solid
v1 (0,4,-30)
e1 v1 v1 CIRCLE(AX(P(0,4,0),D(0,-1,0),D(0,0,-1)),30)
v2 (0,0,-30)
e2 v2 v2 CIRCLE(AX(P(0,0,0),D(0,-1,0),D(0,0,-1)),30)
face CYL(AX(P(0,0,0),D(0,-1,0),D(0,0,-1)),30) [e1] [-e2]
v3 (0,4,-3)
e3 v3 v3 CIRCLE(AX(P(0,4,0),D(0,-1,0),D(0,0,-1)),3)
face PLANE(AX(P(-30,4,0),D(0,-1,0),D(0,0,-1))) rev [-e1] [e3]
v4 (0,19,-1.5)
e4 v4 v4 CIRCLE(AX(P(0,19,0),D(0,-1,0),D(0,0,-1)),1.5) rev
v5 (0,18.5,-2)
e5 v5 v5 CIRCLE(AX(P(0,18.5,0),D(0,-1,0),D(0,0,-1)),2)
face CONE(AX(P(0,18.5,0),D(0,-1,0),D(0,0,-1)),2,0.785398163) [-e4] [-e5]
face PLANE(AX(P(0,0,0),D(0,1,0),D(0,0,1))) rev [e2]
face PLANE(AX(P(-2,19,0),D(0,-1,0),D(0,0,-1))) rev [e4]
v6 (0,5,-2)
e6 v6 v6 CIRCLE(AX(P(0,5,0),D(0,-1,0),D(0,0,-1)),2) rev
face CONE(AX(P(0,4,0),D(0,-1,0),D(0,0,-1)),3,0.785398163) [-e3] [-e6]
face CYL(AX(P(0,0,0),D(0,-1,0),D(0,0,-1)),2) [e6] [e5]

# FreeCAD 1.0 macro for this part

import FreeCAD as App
import Part
import Sketcher
from FreeCAD import Vector


def edges_at(feature, points):
    """Names of the edges that pass closest to the given points."""
    edges = feature.Shape.Edges
    near = lambda p: min(range(len(edges)), key=lambda i: edges[i].distToShape(Part.Vertex(*p))[0])
    return sorted({f"Edge{near(p) + 1}" for p in points})

doc = App.newDocument("Part")
body = doc.addObject("PartDesign::Body", "Body")

sketch1 = body.newObject("Sketcher::SketchObject", "Sketch")
sketch1.AttachmentSupport = (doc.getObject("XY_Plane"), [""])
sketch1.MapMode = "FlatFace"
sketch1.addGeometry([
    Part.LineSegment(Vector(-30, 0, 0), Vector(0, 0, 0)),
    Part.LineSegment(Vector(0, 0, 0), Vector(0, 19, 0)),
    Part.LineSegment(Vector(0, 19, 0), Vector(-2, 19, 0)),
    Part.LineSegment(Vector(-2, 19, 0), Vector(-2, 4, 0)),
    Part.LineSegment(Vector(-2, 4, 0), Vector(-30, 4, 0)),
    Part.LineSegment(Vector(-30, 4, 0), Vector(-30, 0, 0)),
], False)
sketch1.addConstraint([
    Sketcher.Constraint("Coincident", 0, 2, 1, 1),
    Sketcher.Constraint("Coincident", 1, 2, 2, 1),
    Sketcher.Constraint("Coincident", 2, 2, 3, 1),
    Sketcher.Constraint("Coincident", 3, 2, 4, 1),
    Sketcher.Constraint("Coincident", 4, 2, 5, 1),
    Sketcher.Constraint("Coincident", 5, 2, 0, 1),
    Sketcher.Constraint("Horizontal", 0),
    Sketcher.Constraint("Vertical", 1),
    Sketcher.Constraint("Horizontal", 2),
    Sketcher.Constraint("Vertical", 3),
    Sketcher.Constraint("Horizontal", 4),
    Sketcher.Constraint("Vertical", 5),
    Sketcher.Constraint("Coincident", 0, 2, -1, 1),
    Sketcher.Constraint("DistanceX", 0, 1, 0, 2, 30.0),
    Sketcher.Constraint("DistanceX", 2, 2, 2, 1, 2.0),
    Sketcher.Constraint("DistanceY", 1, 1, 1, 2, 19.0),
    Sketcher.Constraint("DistanceY", 3, 2, 3, 1, 15.0),
])
revolution = body.newObject("PartDesign::Revolution", "Revolution")
revolution.Profile = sketch1
revolution.ReferenceAxis = (sketch1, ["V_Axis"])
revolution.Angle = 360
doc.recompute()

chamfer = body.newObject("PartDesign::Chamfer", "Chamfer")
chamfer.Base = (revolution, edges_at(revolution, [(2, 4, 0)]))
chamfer.Size = 1
doc.recompute()

chamfer2 = body.newObject("PartDesign::Chamfer", "Chamfer001")
chamfer2.Base = (chamfer, edges_at(chamfer, [(2, 19, 0)]))
chamfer2.Size = 0.5

doc.recompute()
